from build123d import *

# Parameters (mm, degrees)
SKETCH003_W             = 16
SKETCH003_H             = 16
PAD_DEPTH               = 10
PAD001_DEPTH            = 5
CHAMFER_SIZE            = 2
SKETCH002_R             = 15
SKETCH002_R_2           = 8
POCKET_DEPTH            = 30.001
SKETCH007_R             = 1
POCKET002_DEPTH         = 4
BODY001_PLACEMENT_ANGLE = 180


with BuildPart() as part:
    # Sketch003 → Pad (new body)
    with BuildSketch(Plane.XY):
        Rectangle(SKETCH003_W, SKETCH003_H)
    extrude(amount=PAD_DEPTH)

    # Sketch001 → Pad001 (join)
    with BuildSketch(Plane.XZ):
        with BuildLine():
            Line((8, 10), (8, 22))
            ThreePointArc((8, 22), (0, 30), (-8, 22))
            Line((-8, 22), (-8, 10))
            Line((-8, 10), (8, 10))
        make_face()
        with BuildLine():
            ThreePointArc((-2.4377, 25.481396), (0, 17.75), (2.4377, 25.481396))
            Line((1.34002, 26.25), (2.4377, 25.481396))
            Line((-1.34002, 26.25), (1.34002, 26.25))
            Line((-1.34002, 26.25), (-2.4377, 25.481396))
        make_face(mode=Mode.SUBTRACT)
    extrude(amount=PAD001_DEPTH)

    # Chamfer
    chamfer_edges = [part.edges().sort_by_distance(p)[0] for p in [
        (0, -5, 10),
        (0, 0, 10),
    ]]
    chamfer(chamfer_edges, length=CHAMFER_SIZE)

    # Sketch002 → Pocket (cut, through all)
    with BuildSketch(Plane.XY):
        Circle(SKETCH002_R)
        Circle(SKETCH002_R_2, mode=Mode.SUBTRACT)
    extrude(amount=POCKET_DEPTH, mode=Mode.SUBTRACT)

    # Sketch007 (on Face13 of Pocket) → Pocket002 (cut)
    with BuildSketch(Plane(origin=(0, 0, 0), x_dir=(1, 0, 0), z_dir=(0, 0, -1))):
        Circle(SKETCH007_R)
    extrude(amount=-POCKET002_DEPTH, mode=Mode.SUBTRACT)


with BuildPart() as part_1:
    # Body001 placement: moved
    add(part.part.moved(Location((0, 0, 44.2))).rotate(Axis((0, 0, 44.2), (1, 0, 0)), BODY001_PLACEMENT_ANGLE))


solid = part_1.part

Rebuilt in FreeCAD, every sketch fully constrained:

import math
import FreeCAD as App
import Part
import Sketcher
Q = App.Units.Quantity


def edges_at(feature, points):
    """Names of the edges that pass closest to the given points."""
    edges = feature.Shape.Edges
    near = lambda p: min(range(len(edges)), key=lambda i: edges[i].distToShape(Part.Vertex(*p))[0])
    return sorted({f"Edge{near(p) + 1}" for p in points})


def add_polygon(sketch, points):
    """Adds a closed chain of lines whose ends are joined by coincident constraints."""
    first, n = sketch.GeometryCount, len(points)
    for a, b in zip(points, points[1:] + points[:1]):
        sketch.addGeometry(Part.LineSegment(App.Vector(*a, 0), App.Vector(*b, 0)), False)
    for i in range(n):
        sketch.addConstraint(Sketcher.Constraint("Coincident", first + i, 2, first + (i + 1) % n, 1))

doc = App.newDocument("Part")
body = doc.addObject("PartDesign::Body", "Body")

# Sketch on XY plane
sketch1 = body.newObject("Sketcher::SketchObject", "Sketch")
sketch1.AttachmentSupport = (doc.getObject("XY_Plane"), [""])
sketch1.MapMode = "FlatFace"
add_polygon(sketch1, [(-8, 8), (-8, -8), (8, -8), (8, 8)])  # lines 0-3
sketch1.addConstraint(Sketcher.Constraint("Vertical", 0))
sketch1.addConstraint(Sketcher.Constraint("Horizontal", 1))
sketch1.addConstraint(Sketcher.Constraint("Vertical", 2))
sketch1.addConstraint(Sketcher.Constraint("Horizontal", 3))
sketch1.addConstraint(Sketcher.Constraint("Symmetric", 0, 2, 2, 2, -1, 1))
sketch1.addConstraint(Sketcher.Constraint("Equal", 3, 0))
sketch1.addConstraint(Sketcher.Constraint("DistanceX", 1, 1, 1, 2, 16.0))
pad1 = body.newObject("PartDesign::Pad", "Pad")
pad1.Profile = sketch1
pad1.Length = 10

# Sketch on XZ plane
sketch2 = body.newObject("Sketcher::SketchObject", "Sketch001")
sketch2.AttachmentSupport = (doc.getObject("XZ_Plane"), [""])
sketch2.MapMode = "FlatFace"
sketch2.addGeometry(Part.LineSegment(App.Vector(8, 10, 0), App.Vector(8, 22, 0)), False)
sketch2.addGeometry(Part.ArcOfCircle(Part.Circle(App.Vector(0, 22, 0), App.Vector(0, 0, 1), 8), math.radians(0), math.radians(180)), False)
sketch2.addGeometry(Part.LineSegment(App.Vector(-8, 22, 0), App.Vector(-8, 10, 0)), False)
sketch2.addGeometry(Part.LineSegment(App.Vector(-8, 10, 0), App.Vector(8, 10, 0)), False)
sketch2.addGeometry(Part.ArcOfCircle(Part.Circle(App.Vector(0, 22, 0), App.Vector(0, 0, 1), 4.2), math.radians(125), math.radians(415)), False)
sketch2.addGeometry(Part.LineSegment(App.Vector(-2.4, 25.5, 0), App.Vector(-1.3, 26.2, 0)), False)
sketch2.addGeometry(Part.LineSegment(App.Vector(-1.3, 26.2, 0), App.Vector(1.3, 26.2, 0)), False)
sketch2.addGeometry(Part.LineSegment(App.Vector(1.3, 26.2, 0), App.Vector(2.4, 25.5, 0)), False)
sketch2.addConstraint(Sketcher.Constraint("Tangent", 0, 2, 1, 1))
sketch2.addConstraint(Sketcher.Constraint("Tangent", 1, 2, 2, 1))
sketch2.addConstraint(Sketcher.Constraint("Coincident", 2, 2, 3, 1))
sketch2.addConstraint(Sketcher.Constraint("Coincident", 3, 2, 0, 1))
sketch2.addConstraint(Sketcher.Constraint("Tangent", 4, 1, 5, 1))
sketch2.addConstraint(Sketcher.Constraint("Coincident", 5, 2, 6, 1))
sketch2.addConstraint(Sketcher.Constraint("Coincident", 6, 2, 7, 1))
sketch2.addConstraint(Sketcher.Constraint("Tangent", 7, 2, 4, 2))
sketch2.addConstraint(Sketcher.Constraint("Vertical", 0))
sketch2.addConstraint(Sketcher.Constraint("Vertical", 2))
sketch2.addConstraint(Sketcher.Constraint("Horizontal", 3))
sketch2.addConstraint(Sketcher.Constraint("Horizontal", 6))
sketch2.addConstraint(Sketcher.Constraint("Coincident", 4, 3, 1, 3))
sketch2.addConstraint(Sketcher.Constraint("Symmetric", 4, 1, 7, 2, -2))
sketch2.addConstraint(Sketcher.Constraint("Radius", 1, 8.0))
sketch2.addConstraint(Sketcher.Constraint("DistanceY", 0, 1, 0, 2, 12.0))
sketch2.addConstraint(Sketcher.Constraint("Angle", 5, Q("35.000007 deg")))
sketch2.addConstraint(Sketcher.Constraint("Radius", 4, 4.25))
sketch2.addConstraint(Sketcher.Constraint("DistanceY", -1, 1, 1, 3, 22.0))
sketch2.addConstraint(Sketcher.Constraint("DistanceY", -1, 1, 5, 2, 26.25))
pad2 = body.newObject("PartDesign::Pad", "Pad001")
pad2.Profile = sketch2
pad2.Length = 5
doc.recompute()

chamfer = body.newObject("PartDesign::Chamfer", "Chamfer")
chamfer.Base = (pad2, edges_at(pad2, [(0, -5, 10), (0, 0, 10)]))
chamfer.Size = 2

# Sketch on XY plane
sketch3 = body.newObject("Sketcher::SketchObject", "Sketch002")
sketch3.AttachmentSupport = (doc.getObject("XY_Plane"), [""])
sketch3.MapMode = "FlatFace"
sketch3.addGeometry(Part.Circle(App.Vector(0, 0, 0), App.Vector(0, 0, 1), 15), False)
sketch3.addGeometry(Part.Circle(App.Vector(0, 0, 0), App.Vector(0, 0, 1), 8), False)
sketch3.addConstraint(Sketcher.Constraint("Coincident", 0, 3, -1, 1))
sketch3.addConstraint(Sketcher.Constraint("Coincident", 1, 3, -1, 1))
sketch3.addConstraint(Sketcher.Constraint("Diameter", 0, 30.0))
sketch3.addConstraint(Sketcher.Constraint("Diameter", 1, 16.0))
pocket1 = body.newObject("PartDesign::Pocket", "Pocket")
pocket1.Profile = sketch3
pocket1.Type = "ThroughAll"
pocket1.Reversed = True

# Sketch on XY plane
sketch4 = body.newObject("Sketcher::SketchObject", "Sketch003")
sketch4.AttachmentSupport = (doc.getObject("XY_Plane"), [""])
sketch4.MapMode = "FlatFace"
sketch4.addGeometry(Part.Circle(App.Vector(0, 0, 0), App.Vector(0, 0, 1), 1), False)
sketch4.addConstraint(Sketcher.Constraint("Coincident", 0, 3, -1, 1))
sketch4.addConstraint(Sketcher.Constraint("Diameter", 0, 2.0))
pocket2 = body.newObject("PartDesign::Pocket", "Pocket001")
pocket2.Profile = sketch4
pocket2.Length = 4
pocket2.Reversed = True
body2 = doc.addObject("PartDesign::Body", "Body001")
doc.recompute()

body.Placement = App.Placement(App.Vector(0, 0, 44.2), App.Rotation(App.Vector(1, 0, 0), 180))
boolean = body2.newObject("PartDesign::Boolean", "Boolean")
boolean.Type = "Fuse"
boolean.addObjects([body])

doc.recompute()
